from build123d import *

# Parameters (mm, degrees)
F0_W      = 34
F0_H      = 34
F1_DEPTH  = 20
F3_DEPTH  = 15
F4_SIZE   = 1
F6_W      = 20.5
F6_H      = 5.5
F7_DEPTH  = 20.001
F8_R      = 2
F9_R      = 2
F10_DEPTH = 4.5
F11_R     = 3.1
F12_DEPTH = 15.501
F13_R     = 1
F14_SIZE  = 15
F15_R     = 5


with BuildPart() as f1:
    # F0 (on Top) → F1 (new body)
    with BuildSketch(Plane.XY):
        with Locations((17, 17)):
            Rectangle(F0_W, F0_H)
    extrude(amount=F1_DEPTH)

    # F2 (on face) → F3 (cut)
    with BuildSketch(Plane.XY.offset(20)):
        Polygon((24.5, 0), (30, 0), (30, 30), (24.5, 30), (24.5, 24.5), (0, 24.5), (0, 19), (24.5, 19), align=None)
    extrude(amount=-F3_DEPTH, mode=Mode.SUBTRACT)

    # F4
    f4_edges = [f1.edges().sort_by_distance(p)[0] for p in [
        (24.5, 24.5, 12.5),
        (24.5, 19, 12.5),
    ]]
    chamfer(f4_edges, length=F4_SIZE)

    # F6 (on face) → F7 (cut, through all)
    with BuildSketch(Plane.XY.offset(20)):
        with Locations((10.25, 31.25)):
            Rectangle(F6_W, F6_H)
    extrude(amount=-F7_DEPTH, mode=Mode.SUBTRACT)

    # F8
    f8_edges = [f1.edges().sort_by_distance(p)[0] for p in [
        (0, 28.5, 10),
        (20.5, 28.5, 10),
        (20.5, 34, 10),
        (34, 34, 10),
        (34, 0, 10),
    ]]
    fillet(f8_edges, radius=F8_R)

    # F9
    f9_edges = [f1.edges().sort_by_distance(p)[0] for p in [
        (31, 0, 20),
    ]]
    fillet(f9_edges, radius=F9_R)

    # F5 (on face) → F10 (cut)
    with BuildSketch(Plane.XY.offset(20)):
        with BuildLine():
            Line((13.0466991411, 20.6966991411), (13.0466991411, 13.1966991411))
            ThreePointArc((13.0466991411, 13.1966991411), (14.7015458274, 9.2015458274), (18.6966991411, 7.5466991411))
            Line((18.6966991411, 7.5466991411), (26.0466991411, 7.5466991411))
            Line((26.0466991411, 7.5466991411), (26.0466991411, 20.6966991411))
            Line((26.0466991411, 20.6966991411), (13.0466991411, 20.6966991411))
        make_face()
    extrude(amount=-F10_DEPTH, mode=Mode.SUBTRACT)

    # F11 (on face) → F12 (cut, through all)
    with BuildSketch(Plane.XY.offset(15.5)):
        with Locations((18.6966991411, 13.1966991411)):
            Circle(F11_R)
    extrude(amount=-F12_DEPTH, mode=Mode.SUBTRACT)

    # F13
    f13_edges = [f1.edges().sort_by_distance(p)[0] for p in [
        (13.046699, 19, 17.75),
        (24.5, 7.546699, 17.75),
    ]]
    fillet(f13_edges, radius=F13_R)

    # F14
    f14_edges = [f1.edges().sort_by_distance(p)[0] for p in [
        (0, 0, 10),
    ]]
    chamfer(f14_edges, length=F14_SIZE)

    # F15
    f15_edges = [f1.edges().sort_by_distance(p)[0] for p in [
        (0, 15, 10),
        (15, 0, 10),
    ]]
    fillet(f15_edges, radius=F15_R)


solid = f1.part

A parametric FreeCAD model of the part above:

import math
import FreeCAD as App
import Part
import Sketcher

V = App.Vector


def edges_at(feature, points):
    """Names of the edges that pass closest to the given points."""
    edges = feature.Shape.Edges
    near = lambda p: min(range(len(edges)), key=lambda i: edges[i].distToShape(Part.Vertex(*p))[0])
    return sorted({f"Edge{near(p) + 1}" for p in points})

doc = App.newDocument("Part")
body = doc.addObject("PartDesign::Body", "Body")

# Sketch on XY plane
sketch1 = body.newObject("Sketcher::SketchObject", "Sketch")
sketch1.AttachmentSupport = (doc.getObject("XY_Plane"), [""])
sketch1.MapMode = "FlatFace"
sketch1.addGeometry(Part.LineSegment(V(0, 34, 0), V(0, 0, 0)), False)
sketch1.addGeometry(Part.LineSegment(V(0, 0, 0), V(34, 0, 0)), False)
sketch1.addGeometry(Part.LineSegment(V(34, 0, 0), V(34, 34, 0)), False)
sketch1.addGeometry(Part.LineSegment(V(34, 34, 0), V(0, 34, 0)), False)
sketch1.addConstraint(Sketcher.Constraint("Coincident", 0, 2, 1, 1))
sketch1.addConstraint(Sketcher.Constraint("Coincident", 1, 2, 2, 1))
sketch1.addConstraint(Sketcher.Constraint("Coincident", 2, 2, 3, 1))
sketch1.addConstraint(Sketcher.Constraint("Coincident", 3, 2, 0, 1))
sketch1.addConstraint(Sketcher.Constraint("Vertical", 0))
sketch1.addConstraint(Sketcher.Constraint("Horizontal", 1))
sketch1.addConstraint(Sketcher.Constraint("Vertical", 2))
sketch1.addConstraint(Sketcher.Constraint("Horizontal", 3))
sketch1.addConstraint(Sketcher.Constraint("Coincident", 0, 2, -1, 1))
sketch1.addConstraint(Sketcher.Constraint("Equal", 3, 0))
sketch1.addConstraint(Sketcher.Constraint("DistanceX", 1, 1, 1, 2, 34.0))
pad1 = body.newObject("PartDesign::Pad", "Pad")
pad1.Profile = sketch1
pad1.Length = 20

# Sketch on XY plane
sketch2 = body.newObject("Sketcher::SketchObject", "Sketch001")
sketch2.AttachmentSupport = (doc.getObject("XY_Plane"), [""])
sketch2.MapMode = "FlatFace"
sketch2.AttachmentOffset = App.Placement(V(0, 0, 20), App.Rotation())
sketch2.addGeometry(Part.LineSegment(V(24, 0, 0), V(30, 0, 0)), False)
sketch2.addGeometry(Part.LineSegment(V(30, 0, 0), V(30, 30, 0)), False)
sketch2.addGeometry(Part.LineSegment(V(30, 30, 0), V(24, 30, 0)), False)
sketch2.addGeometry(Part.LineSegment(V(24, 30, 0), V(24, 24, 0)), False)
sketch2.addGeometry(Part.LineSegment(V(24, 24, 0), V(0, 24, 0)), False)
sketch2.addGeometry(Part.LineSegment(V(0, 24, 0), V(0, 19, 0)), False)
sketch2.addGeometry(Part.LineSegment(V(0, 19, 0), V(24, 19, 0)), False)
sketch2.addGeometry(Part.LineSegment(V(24, 19, 0), V(24, 0, 0)), False)
sketch2.addConstraint(Sketcher.Constraint("Coincident", 0, 2, 1, 1))
sketch2.addConstraint(Sketcher.Constraint("Coincident", 1, 2, 2, 1))
sketch2.addConstraint(Sketcher.Constraint("Coincident", 2, 2, 3, 1))
sketch2.addConstraint(Sketcher.Constraint("Coincident", 3, 2, 4, 1))
sketch2.addConstraint(Sketcher.Constraint("Coincident", 4, 2, 5, 1))
sketch2.addConstraint(Sketcher.Constraint("Coincident", 5, 2, 6, 1))
sketch2.addConstraint(Sketcher.Constraint("Coincident", 6, 2, 7, 1))
sketch2.addConstraint(Sketcher.Constraint("Coincident", 7, 2, 0, 1))
sketch2.addConstraint(Sketcher.Constraint("Horizontal", 0))
sketch2.addConstraint(Sketcher.Constraint("Vertical", 1))
sketch2.addConstraint(Sketcher.Constraint("Horizontal", 2))
sketch2.addConstraint(Sketcher.Constraint("Vertical", 3))
sketch2.addConstraint(Sketcher.Constraint("Horizontal", 4))
sketch2.addConstraint(Sketcher.Constraint("Vertical", 5))
sketch2.addConstraint(Sketcher.Constraint("Horizontal", 6))
sketch2.addConstraint(Sketcher.Constraint("Vertical", 7))
sketch2.addConstraint(Sketcher.Constraint("PointOnObject", 0, 2, -1))
sketch2.addConstraint(Sketcher.Constraint("PointOnObject", 4, 2, -2))
sketch2.addConstraint(Sketcher.Constraint("Vertical", 3, 2, 6, 2))
sketch2.addConstraint(Sketcher.Constraint("Equal", 2, 3))
sketch2.addConstraint(Sketcher.Constraint("Equal", 3, 5))
sketch2.addConstraint(Sketcher.Constraint("DistanceY", 1, 1, 1, 2, 30.0))
sketch2.addConstraint(Sketcher.Constraint("DistanceY", 7, 2, 7, 1, 19.0))
sketch2.addConstraint(Sketcher.Constraint("DistanceX", 4, 2, 4, 1, 24.5))
pocket1 = body.newObject("PartDesign::Pocket", "Pocket")
pocket1.Profile = sketch2
pocket1.Length = 15
doc.recompute()

chamfer = body.newObject("PartDesign::Chamfer", "Chamfer")
chamfer.Base = (pocket1, edges_at(pocket1, [(24.5, 24.5, 12.5), (24.5, 19, 12.5)]))
chamfer.Size = 1

# Sketch on XY plane
sketch3 = body.newObject("Sketcher::SketchObject", "Sketch002")
sketch3.AttachmentSupport = (doc.getObject("XY_Plane"), [""])
sketch3.MapMode = "FlatFace"
sketch3.AttachmentOffset = App.Placement(V(0, 0, 20), App.Rotation())
sketch3.addGeometry(Part.LineSegment(V(0, 34, 0), V(0, 28, 0)), False)
sketch3.addGeometry(Part.LineSegment(V(0, 28, 0), V(20, 28, 0)), False)
sketch3.addGeometry(Part.LineSegment(V(20, 28, 0), V(20, 34, 0)), False)
sketch3.addGeometry(Part.LineSegment(V(20, 34, 0), V(0, 34, 0)), False)
sketch3.addConstraint(Sketcher.Constraint("Coincident", 0, 2, 1, 1))
sketch3.addConstraint(Sketcher.Constraint("Coincident", 1, 2, 2, 1))
sketch3.addConstraint(Sketcher.Constraint("Coincident", 2, 2, 3, 1))
sketch3.addConstraint(Sketcher.Constraint("Coincident", 3, 2, 0, 1))
sketch3.addConstraint(Sketcher.Constraint("Vertical", 0))
sketch3.addConstraint(Sketcher.Constraint("Horizontal", 1))
sketch3.addConstraint(Sketcher.Constraint("Vertical", 2))
sketch3.addConstraint(Sketcher.Constraint("Horizontal", 3))
sketch3.addConstraint(Sketcher.Constraint("PointOnObject", 0, 2, -2))
sketch3.addConstraint(Sketcher.Constraint("DistanceX", 1, 1, 1, 2, 20.5))
sketch3.addConstraint(Sketcher.Constraint("DistanceY", 0, 2, 0, 1, 5.5))
sketch3.addConstraint(Sketcher.Constraint("DistanceY", -1, 1, 2, 2, 34.0))
pocket2 = body.newObject("PartDesign::Pocket", "Pocket001")
pocket2.Profile = sketch3
pocket2.Type = "ThroughAll"
doc.recompute()

fillet = body.newObject("PartDesign::Fillet", "Fillet")
fillet.Base = (pocket2, edges_at(pocket2, [
    (0, 28.5, 10),
    (20.5, 28.5, 10),
    (20.5, 34, 10),
    (34, 34, 10),
    (34, 0, 10),
]))
fillet.Radius = 2
doc.recompute()

fillet2 = body.newObject("PartDesign::Fillet", "Fillet001")
fillet2.Base = (fillet, edges_at(fillet, [(31, 0, 20)]))
fillet2.Radius = 2

# Sketch on XY plane
sketch4 = body.newObject("Sketcher::SketchObject", "Sketch003")
sketch4.AttachmentSupport = (doc.getObject("XY_Plane"), [""])
sketch4.MapMode = "FlatFace"
sketch4.AttachmentOffset = App.Placement(V(0, 0, 20), App.Rotation())
sketch4.addGeometry(Part.LineSegment(V(13, 21, 0), V(13, 13, 0)), False)
sketch4.addGeometry(Part.ArcOfCircle(Part.Circle(V(19, 13, 0), V(0, 0, 1), 6), math.radians(180), math.radians(270)), False)
sketch4.addGeometry(Part.LineSegment(V(19, 8, 0), V(26, 8, 0)), False)
sketch4.addGeometry(Part.LineSegment(V(26, 8, 0), V(26, 21, 0)), False)
sketch4.addGeometry(Part.LineSegment(V(26, 21, 0), V(13, 21, 0)), False)
sketch4.addConstraint(Sketcher.Constraint("Tangent", 0, 2, 1, 1))
sketch4.addConstraint(Sketcher.Constraint("Tangent", 1, 2, 2, 1))
sketch4.addConstraint(Sketcher.Constraint("Coincident", 2, 2, 3, 1))
sketch4.addConstraint(Sketcher.Constraint("Coincident", 3, 2, 4, 1))
sketch4.addConstraint(Sketcher.Constraint("Coincident", 4, 2, 0, 1))
sketch4.addConstraint(Sketcher.Constraint("Vertical", 0))
sketch4.addConstraint(Sketcher.Constraint("Horizontal", 2))
sketch4.addConstraint(Sketcher.Constraint("Vertical", 3))
sketch4.addConstraint(Sketcher.Constraint("Horizontal", 4))
sketch4.addConstraint(Sketcher.Constraint("DistanceX", 4, 2, 4, 1, 13.0))
sketch4.addConstraint(Sketcher.Constraint("Radius", 1, 5.65))
sketch4.addConstraint(Sketcher.Constraint("DistanceY", 0, 2, 0, 1, 7.5))
sketch4.addConstraint(Sketcher.Constraint("DistanceX", -1, 1, 1, 3, 18.696699))
sketch4.addConstraint(Sketcher.Constraint("DistanceY", -1, 1, 1, 3, 13.196699))
pocket3 = body.newObject("PartDesign::Pocket", "Pocket002")
pocket3.Profile = sketch4
pocket3.Length = 4.5

# Sketch on XY plane
sketch5 = body.newObject("Sketcher::SketchObject", "Sketch004")
sketch5.AttachmentSupport = (doc.getObject("XY_Plane"), [""])
sketch5.MapMode = "FlatFace"
sketch5.AttachmentOffset = App.Placement(V(0, 0, 15.5), App.Rotation())
sketch5.addGeometry(Part.Circle(V(18.7, 13.2, 0), V(0, 0, 1), 3.1), False)
sketch5.addConstraint(Sketcher.Constraint("Diameter", 0, 6.2))
sketch5.addConstraint(Sketcher.Constraint("DistanceX", -1, 1, 0, 3, 18.696699))
sketch5.addConstraint(Sketcher.Constraint("DistanceY", -1, 1, 0, 3, 13.196699))
pocket4 = body.newObject("PartDesign::Pocket", "Pocket003")
pocket4.Profile = sketch5
pocket4.Type = "ThroughAll"
doc.recompute()

fillet3 = body.newObject("PartDesign::Fillet", "Fillet002")
fillet3.Base = (pocket4, edges_at(pocket4, [(13.047, 19, 17.75), (24.5, 7.547, 17.75)]))
fillet3.Radius = 1
doc.recompute()

chamfer2 = body.newObject("PartDesign::Chamfer", "Chamfer001")
chamfer2.Base = (fillet3, edges_at(fillet3, [(0, 0, 10)]))
chamfer2.Size = 15
doc.recompute()

fillet4 = body.newObject("PartDesign::Fillet", "Fillet003")
fillet4.Base = (chamfer2, edges_at(chamfer2, [(0, 15, 10), (15, 0, 10)]))
fillet4.Radius = 5

doc.recompute()
